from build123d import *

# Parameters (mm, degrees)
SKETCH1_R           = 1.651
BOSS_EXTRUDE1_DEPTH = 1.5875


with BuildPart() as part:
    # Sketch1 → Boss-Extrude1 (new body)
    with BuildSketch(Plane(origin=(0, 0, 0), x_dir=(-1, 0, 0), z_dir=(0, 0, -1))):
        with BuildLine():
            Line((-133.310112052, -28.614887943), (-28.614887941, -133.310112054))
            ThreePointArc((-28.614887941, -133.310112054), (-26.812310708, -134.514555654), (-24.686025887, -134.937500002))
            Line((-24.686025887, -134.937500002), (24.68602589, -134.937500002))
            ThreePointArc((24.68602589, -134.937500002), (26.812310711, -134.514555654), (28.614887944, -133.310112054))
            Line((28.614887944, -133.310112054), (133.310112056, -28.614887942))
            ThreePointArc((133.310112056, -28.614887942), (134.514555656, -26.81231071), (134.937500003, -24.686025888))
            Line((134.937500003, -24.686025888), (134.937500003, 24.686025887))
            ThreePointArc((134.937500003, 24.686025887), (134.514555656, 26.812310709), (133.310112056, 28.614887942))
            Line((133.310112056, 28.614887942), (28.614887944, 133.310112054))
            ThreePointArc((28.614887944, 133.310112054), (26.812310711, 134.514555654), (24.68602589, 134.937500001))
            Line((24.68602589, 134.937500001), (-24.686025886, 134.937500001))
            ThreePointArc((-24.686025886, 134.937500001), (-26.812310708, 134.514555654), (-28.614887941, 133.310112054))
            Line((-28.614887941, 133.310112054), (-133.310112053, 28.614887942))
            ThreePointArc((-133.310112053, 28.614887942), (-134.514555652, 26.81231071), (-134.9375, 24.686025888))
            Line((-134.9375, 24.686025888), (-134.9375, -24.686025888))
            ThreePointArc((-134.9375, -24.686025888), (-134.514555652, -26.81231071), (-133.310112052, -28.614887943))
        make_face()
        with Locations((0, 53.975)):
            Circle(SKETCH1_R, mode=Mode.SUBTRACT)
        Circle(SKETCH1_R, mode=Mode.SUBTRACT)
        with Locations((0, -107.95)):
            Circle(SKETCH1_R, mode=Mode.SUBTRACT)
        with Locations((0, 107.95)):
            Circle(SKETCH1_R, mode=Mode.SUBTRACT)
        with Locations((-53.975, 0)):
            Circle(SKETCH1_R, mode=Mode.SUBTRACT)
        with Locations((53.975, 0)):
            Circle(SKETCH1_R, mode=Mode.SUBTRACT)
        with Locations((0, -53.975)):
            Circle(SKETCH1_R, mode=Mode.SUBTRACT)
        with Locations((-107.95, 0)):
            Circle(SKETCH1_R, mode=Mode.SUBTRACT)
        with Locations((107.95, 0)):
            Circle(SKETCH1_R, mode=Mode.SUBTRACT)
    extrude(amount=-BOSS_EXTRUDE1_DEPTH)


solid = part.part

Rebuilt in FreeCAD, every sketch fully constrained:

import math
import FreeCAD as App
import Part
import Sketcher

V = App.Vector
Q = App.Units.Quantity

doc = App.newDocument("Part")
body = doc.addObject("PartDesign::Body", "Body")

sketch1 = body.newObject("Sketcher::SketchObject", "Sketch")
sketch1.AttachmentSupport = (doc.getObject("XY_Plane"), [""])
sketch1.MapMode = "FlatFace"
sketch1.addGeometry(Part.LineSegment(V(133.3, -28.6, 0), V(28.6, -133.3, 0)), False)
sketch1.addGeometry(Part.ArcOfCircle(Part.Circle(V(24.7, -129.4, 0), V(0, 0, 1), 5.6), math.radians(-90), math.radians(-45)), False)
sketch1.addGeometry(Part.LineSegment(V(24.7, -134.9, 0), V(-24.7, -134.9, 0)), False)
sketch1.addGeometry(Part.ArcOfCircle(Part.Circle(V(-24.7, -129.4, 0), V(0, 0, 1), 5.6), math.radians(-135), math.radians(-90)), False)
sketch1.addGeometry(Part.LineSegment(V(-28.6, -133.3, 0), V(-133.3, -28.6, 0)), False)
sketch1.addGeometry(Part.ArcOfCircle(Part.Circle(V(-129.4, -24.7, 0), V(0, 0, 1), 5.6), math.radians(180), math.radians(225)), False)
sketch1.addGeometry(Part.LineSegment(V(-134.9, -24.7, 0), V(-134.9, 24.7, 0)), False)
sketch1.addGeometry(Part.ArcOfCircle(Part.Circle(V(-129.4, 24.7, 0), V(0, 0, 1), 5.6), math.radians(135), math.radians(180)), False)
sketch1.addGeometry(Part.LineSegment(V(-133.3, 28.6, 0), V(-28.6, 133.3, 0)), False)
sketch1.addGeometry(Part.ArcOfCircle(Part.Circle(V(-24.7, 129.4, 0), V(0, 0, 1), 5.6), math.radians(90), math.radians(135)), False)
sketch1.addGeometry(Part.LineSegment(V(-24.7, 134.9, 0), V(24.7, 134.9, 0)), False)
sketch1.addGeometry(Part.ArcOfCircle(Part.Circle(V(24.7, 129.4, 0), V(0, 0, 1), 5.6), math.radians(45), math.radians(90)), False)
sketch1.addGeometry(Part.LineSegment(V(28.6, 133.3, 0), V(133.3, 28.6, 0)), False)
sketch1.addGeometry(Part.ArcOfCircle(Part.Circle(V(129.4, 24.7, 0), V(0, 0, 1), 5.6), math.radians(0), math.radians(45)), False)
sketch1.addGeometry(Part.LineSegment(V(134.9, 24.7, 0), V(134.9, -24.7, 0)), False)
sketch1.addGeometry(Part.ArcOfCircle(Part.Circle(V(129.4, -24.7, 0), V(0, 0, 1), 5.6), math.radians(-45), math.radians(0)), False)
sketch1.addGeometry(Part.Circle(V(0, -108, 0), V(0, 0, 1), 1.7), False)
sketch1.addGeometry(Part.Circle(V(0, -54, 0), V(0, 0, 1), 1.7), False)
sketch1.addGeometry(Part.Circle(V(108, 0, 0), V(0, 0, 1), 1.7), False)
sketch1.addGeometry(Part.Circle(V(54, 0, 0), V(0, 0, 1), 1.7), False)
sketch1.addGeometry(Part.Circle(V(0, 0, 0), V(0, 0, 1), 1.7), False)
sketch1.addGeometry(Part.Circle(V(-54, 0, 0), V(0, 0, 1), 1.7), False)
sketch1.addGeometry(Part.Circle(V(0, 54, 0), V(0, 0, 1), 1.7), False)
sketch1.addGeometry(Part.Circle(V(-108, 0, 0), V(0, 0, 1), 1.7), False)
sketch1.addGeometry(Part.Circle(V(0, 108, 0), V(0, 0, 1), 1.7), False)
sketch1.addConstraint(Sketcher.Constraint("Tangent", 0, 2, 1, 2))
sketch1.addConstraint(Sketcher.Constraint("Tangent", 1, 1, 2, 1))
sketch1.addConstraint(Sketcher.Constraint("Tangent", 2, 2, 3, 2))
sketch1.addConstraint(Sketcher.Constraint("Tangent", 3, 1, 4, 1))
sketch1.addConstraint(Sketcher.Constraint("Tangent", 4, 2, 5, 2))
sketch1.addConstraint(Sketcher.Constraint("Tangent", 5, 1, 6, 1))
sketch1.addConstraint(Sketcher.Constraint("Tangent", 6, 2, 7, 2))
sketch1.addConstraint(Sketcher.Constraint("Tangent", 7, 1, 8, 1))
sketch1.addConstraint(Sketcher.Constraint("Tangent", 8, 2, 9, 2))
sketch1.addConstraint(Sketcher.Constraint("Tangent", 9, 1, 10, 1))
sketch1.addConstraint(Sketcher.Constraint("Tangent", 10, 2, 11, 2))
sketch1.addConstraint(Sketcher.Constraint("Tangent", 11, 1, 12, 1))
sketch1.addConstraint(Sketcher.Constraint("Tangent", 12, 2, 13, 2))
sketch1.addConstraint(Sketcher.Constraint("Tangent", 13, 1, 14, 1))
sketch1.addConstraint(Sketcher.Constraint("Tangent", 14, 2, 15, 2))
sketch1.addConstraint(Sketcher.Constraint("Tangent", 15, 1, 0, 1))
sketch1.addConstraint(Sketcher.Constraint("Horizontal", 2))
sketch1.addConstraint(Sketcher.Constraint("Vertical", 6))
sketch1.addConstraint(Sketcher.Constraint("Horizontal", 10))
sketch1.addConstraint(Sketcher.Constraint("Vertical", 14))
sketch1.addConstraint(Sketcher.Constraint("Coincident", 20, 3, -1, 1))
sketch1.addConstraint(Sketcher.Constraint("Equal", 1, 3))
sketch1.addConstraint(Sketcher.Constraint("Equal", 3, 5))
sketch1.addConstraint(Sketcher.Constraint("Equal", 5, 7))
sketch1.addConstraint(Sketcher.Constraint("Equal", 7, 9))
sketch1.addConstraint(Sketcher.Constraint("Equal", 9, 11))
sketch1.addConstraint(Sketcher.Constraint("Equal", 11, 13))
sketch1.addConstraint(Sketcher.Constraint("Equal", 13, 15))
sketch1.addConstraint(Sketcher.Constraint("Equal", 16, 17))
sketch1.addConstraint(Sketcher.Constraint("Equal", 17, 18))
sketch1.addConstraint(Sketcher.Constraint("Equal", 18, 19))
sketch1.addConstraint(Sketcher.Constraint("Equal", 19, 20))
sketch1.addConstraint(Sketcher.Constraint("Equal", 20, 21))
sketch1.addConstraint(Sketcher.Constraint("Equal", 21, 22))
sketch1.addConstraint(Sketcher.Constraint("Equal", 22, 23))
sketch1.addConstraint(Sketcher.Constraint("Equal", 23, 24))
sketch1.addConstraint(Sketcher.Constraint("Symmetric", 1, 3, 9, 3, -1, 1))
sketch1.addConstraint(Sketcher.Constraint("Symmetric", 5, 3, 13, 3, -1, 1))
sketch1.addConstraint(Sketcher.Constraint("Symmetric", 19, 3, 21, 3, -1, 1))
sketch1.addConstraint(Sketcher.Constraint("Symmetric", 17, 3, 22, 3, -1, 1))
sketch1.addConstraint(Sketcher.Constraint("Symmetric", 18, 3, 23, 3, -1, 1))
sketch1.addConstraint(Sketcher.Constraint("Symmetric", 16, 3, 24, 3, -1, 1))
sketch1.addConstraint(Sketcher.Constraint("Symmetric", 0, 2, 3, 1, -2))
sketch1.addConstraint(Sketcher.Constraint("Symmetric", 8, 2, 11, 1, -2))
sketch1.addConstraint(Sketcher.Constraint("PointOnObject", 16, 3, -2))
sketch1.addConstraint(Sketcher.Constraint("PointOnObject", 17, 3, -2))
sketch1.addConstraint(Sketcher.Constraint("PointOnObject", 18, 3, -1))
sketch1.addConstraint(Sketcher.Constraint("PointOnObject", 19, 3, -1))
sketch1.addConstraint(Sketcher.Constraint("Perpendicular", 0, 4))
sketch1.addConstraint(Sketcher.Constraint("Equal", 10, 6))
sketch1.addConstraint(Sketcher.Constraint("Diameter", 16, Q("0.13 in")))
sketch1.addConstraint(Sketcher.Constraint("Radius", 1, Q("0.21875 in")))
sketch1.addConstraint(Sketcher.Constraint("DistanceY", 16, 3, -1, 1, Q("4.25 in")))
sketch1.addConstraint(Sketcher.Constraint("DistanceX", -1, 1, 18, 3, Q("4.25 in")))
sketch1.addConstraint(Sketcher.Constraint("DistanceX", 21, 3, 19, 3, Q("4.25 in")))
sketch1.addConstraint(Sketcher.Constraint("DistanceY", 1, 3, -1, 1, Q("5.09375 in")))
sketch1.addConstraint(Sketcher.Constraint("DistanceY", 17, 3, -1, 1, Q("2.125 in")))
sketch1.addConstraint(Sketcher.Constraint("DistanceX", 2, 2, 2, 1, 49.372052))
pad1 = body.newObject("PartDesign::Pad", "Pad")
pad1.Profile = sketch1
pad1.Length = Q("0.0625 in")

doc.recompute()
